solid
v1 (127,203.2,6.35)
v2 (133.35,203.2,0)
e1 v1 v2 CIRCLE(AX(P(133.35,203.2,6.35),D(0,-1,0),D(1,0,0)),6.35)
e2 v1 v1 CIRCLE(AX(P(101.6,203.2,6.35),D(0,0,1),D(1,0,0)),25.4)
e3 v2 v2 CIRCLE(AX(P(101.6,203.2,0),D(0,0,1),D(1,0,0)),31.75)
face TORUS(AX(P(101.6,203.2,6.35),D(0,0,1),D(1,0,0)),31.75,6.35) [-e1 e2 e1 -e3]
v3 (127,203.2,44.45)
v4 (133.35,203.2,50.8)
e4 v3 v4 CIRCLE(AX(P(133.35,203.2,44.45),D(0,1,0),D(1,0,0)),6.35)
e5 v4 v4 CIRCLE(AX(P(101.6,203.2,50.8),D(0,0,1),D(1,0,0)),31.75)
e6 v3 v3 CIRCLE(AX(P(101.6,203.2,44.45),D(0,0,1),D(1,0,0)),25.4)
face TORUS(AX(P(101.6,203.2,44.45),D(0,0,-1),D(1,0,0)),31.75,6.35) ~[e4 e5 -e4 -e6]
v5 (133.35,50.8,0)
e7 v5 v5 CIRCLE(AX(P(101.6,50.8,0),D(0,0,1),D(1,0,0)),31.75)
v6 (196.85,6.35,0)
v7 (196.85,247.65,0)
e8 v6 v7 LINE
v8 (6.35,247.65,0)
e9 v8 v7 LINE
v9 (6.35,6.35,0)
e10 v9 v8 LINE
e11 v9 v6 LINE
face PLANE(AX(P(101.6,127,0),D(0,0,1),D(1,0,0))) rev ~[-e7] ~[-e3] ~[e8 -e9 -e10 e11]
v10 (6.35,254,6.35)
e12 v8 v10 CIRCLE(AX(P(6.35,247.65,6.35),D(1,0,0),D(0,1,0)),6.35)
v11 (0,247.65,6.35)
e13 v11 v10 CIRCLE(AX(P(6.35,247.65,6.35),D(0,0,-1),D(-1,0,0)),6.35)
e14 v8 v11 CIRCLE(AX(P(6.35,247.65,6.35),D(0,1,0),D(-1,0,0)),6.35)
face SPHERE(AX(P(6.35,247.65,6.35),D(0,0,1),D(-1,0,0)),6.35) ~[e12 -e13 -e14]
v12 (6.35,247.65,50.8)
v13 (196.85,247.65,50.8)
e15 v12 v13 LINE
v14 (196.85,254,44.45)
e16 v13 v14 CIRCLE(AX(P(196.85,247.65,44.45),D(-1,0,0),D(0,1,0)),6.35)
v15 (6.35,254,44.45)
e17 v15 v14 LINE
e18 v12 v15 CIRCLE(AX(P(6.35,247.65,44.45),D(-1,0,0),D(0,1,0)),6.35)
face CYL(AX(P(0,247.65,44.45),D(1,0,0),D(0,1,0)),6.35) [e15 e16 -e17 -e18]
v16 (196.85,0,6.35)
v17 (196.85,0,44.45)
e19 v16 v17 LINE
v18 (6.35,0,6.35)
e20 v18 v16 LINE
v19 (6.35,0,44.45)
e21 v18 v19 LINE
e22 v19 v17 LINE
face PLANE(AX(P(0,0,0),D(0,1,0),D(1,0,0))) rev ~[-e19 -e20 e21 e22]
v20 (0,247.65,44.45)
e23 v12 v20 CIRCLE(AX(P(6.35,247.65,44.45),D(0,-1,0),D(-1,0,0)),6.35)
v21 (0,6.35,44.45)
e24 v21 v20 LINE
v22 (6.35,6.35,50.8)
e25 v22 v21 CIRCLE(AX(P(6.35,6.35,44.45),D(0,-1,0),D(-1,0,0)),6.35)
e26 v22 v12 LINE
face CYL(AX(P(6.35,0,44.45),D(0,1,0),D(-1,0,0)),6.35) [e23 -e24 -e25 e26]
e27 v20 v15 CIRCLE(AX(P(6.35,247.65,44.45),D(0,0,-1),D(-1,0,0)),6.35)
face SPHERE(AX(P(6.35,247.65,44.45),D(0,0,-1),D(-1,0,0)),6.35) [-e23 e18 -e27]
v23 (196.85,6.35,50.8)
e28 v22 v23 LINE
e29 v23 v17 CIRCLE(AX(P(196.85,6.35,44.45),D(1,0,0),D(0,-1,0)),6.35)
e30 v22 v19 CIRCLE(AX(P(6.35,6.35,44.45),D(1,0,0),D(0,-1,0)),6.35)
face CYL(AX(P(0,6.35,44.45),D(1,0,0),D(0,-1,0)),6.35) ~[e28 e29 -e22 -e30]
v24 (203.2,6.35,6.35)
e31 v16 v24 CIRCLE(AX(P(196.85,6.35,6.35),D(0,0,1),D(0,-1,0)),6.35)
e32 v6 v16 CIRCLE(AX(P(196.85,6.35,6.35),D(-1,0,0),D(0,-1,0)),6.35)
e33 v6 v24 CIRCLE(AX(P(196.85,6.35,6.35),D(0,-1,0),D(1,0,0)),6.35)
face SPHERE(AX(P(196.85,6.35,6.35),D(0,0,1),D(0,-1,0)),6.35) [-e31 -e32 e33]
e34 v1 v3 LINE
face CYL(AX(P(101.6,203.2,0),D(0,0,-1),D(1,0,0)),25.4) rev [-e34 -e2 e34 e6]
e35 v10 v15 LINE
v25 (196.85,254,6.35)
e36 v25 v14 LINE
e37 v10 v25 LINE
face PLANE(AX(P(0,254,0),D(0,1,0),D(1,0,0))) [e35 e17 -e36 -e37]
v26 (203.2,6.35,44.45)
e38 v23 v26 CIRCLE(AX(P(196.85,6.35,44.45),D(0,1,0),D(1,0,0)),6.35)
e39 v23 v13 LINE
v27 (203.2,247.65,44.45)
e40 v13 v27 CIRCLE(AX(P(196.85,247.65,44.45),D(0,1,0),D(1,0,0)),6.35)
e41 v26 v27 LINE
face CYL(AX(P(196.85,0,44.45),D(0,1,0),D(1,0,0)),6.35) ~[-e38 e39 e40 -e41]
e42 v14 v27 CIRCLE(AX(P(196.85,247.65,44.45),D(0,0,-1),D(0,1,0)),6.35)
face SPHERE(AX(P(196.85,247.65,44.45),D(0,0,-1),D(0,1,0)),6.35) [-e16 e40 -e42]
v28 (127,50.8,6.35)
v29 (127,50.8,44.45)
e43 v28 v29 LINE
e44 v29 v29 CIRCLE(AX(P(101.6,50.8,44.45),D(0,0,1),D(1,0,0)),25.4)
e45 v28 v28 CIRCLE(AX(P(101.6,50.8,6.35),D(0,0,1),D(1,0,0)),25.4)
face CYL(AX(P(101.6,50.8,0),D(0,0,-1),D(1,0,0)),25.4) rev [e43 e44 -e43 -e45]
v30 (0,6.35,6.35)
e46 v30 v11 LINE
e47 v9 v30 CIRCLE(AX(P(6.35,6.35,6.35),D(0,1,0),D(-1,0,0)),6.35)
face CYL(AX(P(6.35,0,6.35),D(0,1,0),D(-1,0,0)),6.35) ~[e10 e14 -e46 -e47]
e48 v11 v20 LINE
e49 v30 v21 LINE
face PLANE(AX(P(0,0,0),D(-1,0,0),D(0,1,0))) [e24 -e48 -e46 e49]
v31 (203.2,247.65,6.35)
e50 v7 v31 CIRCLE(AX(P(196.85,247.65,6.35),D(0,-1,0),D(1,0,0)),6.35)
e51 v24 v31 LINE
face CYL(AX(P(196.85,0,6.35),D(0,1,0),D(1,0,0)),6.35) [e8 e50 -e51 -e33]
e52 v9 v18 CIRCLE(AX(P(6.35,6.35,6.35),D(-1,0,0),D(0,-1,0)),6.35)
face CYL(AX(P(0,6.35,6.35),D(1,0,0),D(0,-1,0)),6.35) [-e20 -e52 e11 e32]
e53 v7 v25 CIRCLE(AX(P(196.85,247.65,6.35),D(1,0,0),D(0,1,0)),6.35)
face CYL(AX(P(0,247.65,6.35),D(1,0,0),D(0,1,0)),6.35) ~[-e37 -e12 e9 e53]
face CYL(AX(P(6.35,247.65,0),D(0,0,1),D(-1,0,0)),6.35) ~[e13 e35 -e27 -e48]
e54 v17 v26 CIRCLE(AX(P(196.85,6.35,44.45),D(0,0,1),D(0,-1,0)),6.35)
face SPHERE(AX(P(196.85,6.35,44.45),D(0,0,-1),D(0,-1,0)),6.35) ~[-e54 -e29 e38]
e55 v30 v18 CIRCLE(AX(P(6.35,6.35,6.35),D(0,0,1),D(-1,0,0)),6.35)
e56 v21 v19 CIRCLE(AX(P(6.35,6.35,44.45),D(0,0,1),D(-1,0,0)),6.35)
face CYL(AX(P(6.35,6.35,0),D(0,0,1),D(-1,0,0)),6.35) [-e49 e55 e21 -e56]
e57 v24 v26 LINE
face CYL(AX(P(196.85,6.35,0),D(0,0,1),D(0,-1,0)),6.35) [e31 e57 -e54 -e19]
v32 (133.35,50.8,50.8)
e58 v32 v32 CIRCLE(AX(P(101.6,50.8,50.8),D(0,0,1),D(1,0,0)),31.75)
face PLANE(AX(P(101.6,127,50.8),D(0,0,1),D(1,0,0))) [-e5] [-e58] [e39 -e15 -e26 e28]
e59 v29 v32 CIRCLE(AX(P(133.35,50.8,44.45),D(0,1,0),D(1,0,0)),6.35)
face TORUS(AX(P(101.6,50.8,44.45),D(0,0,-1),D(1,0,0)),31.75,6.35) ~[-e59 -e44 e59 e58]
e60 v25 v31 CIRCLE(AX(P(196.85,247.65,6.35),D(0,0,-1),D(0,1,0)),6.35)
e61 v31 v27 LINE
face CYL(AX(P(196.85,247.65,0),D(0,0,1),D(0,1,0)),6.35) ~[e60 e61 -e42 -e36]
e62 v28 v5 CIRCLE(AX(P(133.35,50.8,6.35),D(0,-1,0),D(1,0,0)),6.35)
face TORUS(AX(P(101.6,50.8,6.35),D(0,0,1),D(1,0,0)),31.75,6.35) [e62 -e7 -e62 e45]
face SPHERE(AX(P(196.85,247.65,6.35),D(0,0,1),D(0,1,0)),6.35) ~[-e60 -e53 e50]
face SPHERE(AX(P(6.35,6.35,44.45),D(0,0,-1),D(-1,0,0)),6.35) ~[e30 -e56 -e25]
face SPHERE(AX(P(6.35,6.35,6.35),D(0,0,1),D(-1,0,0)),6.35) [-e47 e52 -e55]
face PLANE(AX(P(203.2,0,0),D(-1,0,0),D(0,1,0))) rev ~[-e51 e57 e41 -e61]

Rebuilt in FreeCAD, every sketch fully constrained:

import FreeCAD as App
import Part
import Sketcher
Q = App.Units.Quantity

doc = App.newDocument("Part")
body = doc.addObject("PartDesign::Body", "Body")

# Sketch on XY plane
sketch1 = body.newObject("Sketcher::SketchObject", "Sketch")
sketch1.AttachmentSupport = (doc.getObject("XY_Plane"), [""])
sketch1.MapMode = "FlatFace"
sketch1.addGeometry([
    Part.LineSegment(App.Vector(0, 254, 0), App.Vector(0, 0, 0)),  # 0
    Part.LineSegment(App.Vector(0, 0, 0), App.Vector(203, 0, 0)),  # 1
    Part.LineSegment(App.Vector(203, 0, 0), App.Vector(203, 254, 0)),  # 2
    Part.LineSegment(App.Vector(203, 254, 0), App.Vector(0, 254, 0)),  # 3
    Part.Circle(App.Vector(102, 51, 0), App.Vector(0, 0, 1), 25),  # 4
    Part.Circle(App.Vector(102, 203, 0), App.Vector(0, 0, 1), 25),  # 5
], False)
sketch1.addConstraint([
    Sketcher.Constraint("Coincident", 0, 2, 1, 1),
    Sketcher.Constraint("Coincident", 1, 2, 2, 1),
    Sketcher.Constraint("Coincident", 2, 2, 3, 1),
    Sketcher.Constraint("Coincident", 3, 2, 0, 1),
    Sketcher.Constraint("Vertical", 0),
    Sketcher.Constraint("Horizontal", 1),
    Sketcher.Constraint("Vertical", 2),
    Sketcher.Constraint("Horizontal", 3),
    Sketcher.Constraint("Coincident", 0, 2, -1, 1),
    Sketcher.Constraint("Equal", 4, 5),
    Sketcher.Constraint("Vertical", 4, 3, 5, 3),
    Sketcher.Constraint("Diameter", 4, Q("2 in")),
    Sketcher.Constraint("DistanceX", 1, 1, 1, 2, Q("8 in")),
    Sketcher.Constraint("DistanceY", 0, 2, 0, 1, Q("10 in")),
    Sketcher.Constraint("DistanceX", -1, 1, 4, 3, Q("4 in")),
    Sketcher.Constraint("DistanceY", -1, 1, 4, 3, Q("2 in")),
    Sketcher.Constraint("DistanceY", -1, 1, 5, 3, Q("8 in")),
])
pad1 = body.newObject("PartDesign::Pad", "Pad")
pad1.Profile = sketch1
pad1.Length = Q("2 in")
doc.recompute()

fillet = body.newObject("PartDesign::Fillet", "Fillet")
fillet.Base = (pad1, ["Edge1"])
fillet.UseAllEdges = True
fillet.Radius = Q("0.25 in")

doc.recompute()
